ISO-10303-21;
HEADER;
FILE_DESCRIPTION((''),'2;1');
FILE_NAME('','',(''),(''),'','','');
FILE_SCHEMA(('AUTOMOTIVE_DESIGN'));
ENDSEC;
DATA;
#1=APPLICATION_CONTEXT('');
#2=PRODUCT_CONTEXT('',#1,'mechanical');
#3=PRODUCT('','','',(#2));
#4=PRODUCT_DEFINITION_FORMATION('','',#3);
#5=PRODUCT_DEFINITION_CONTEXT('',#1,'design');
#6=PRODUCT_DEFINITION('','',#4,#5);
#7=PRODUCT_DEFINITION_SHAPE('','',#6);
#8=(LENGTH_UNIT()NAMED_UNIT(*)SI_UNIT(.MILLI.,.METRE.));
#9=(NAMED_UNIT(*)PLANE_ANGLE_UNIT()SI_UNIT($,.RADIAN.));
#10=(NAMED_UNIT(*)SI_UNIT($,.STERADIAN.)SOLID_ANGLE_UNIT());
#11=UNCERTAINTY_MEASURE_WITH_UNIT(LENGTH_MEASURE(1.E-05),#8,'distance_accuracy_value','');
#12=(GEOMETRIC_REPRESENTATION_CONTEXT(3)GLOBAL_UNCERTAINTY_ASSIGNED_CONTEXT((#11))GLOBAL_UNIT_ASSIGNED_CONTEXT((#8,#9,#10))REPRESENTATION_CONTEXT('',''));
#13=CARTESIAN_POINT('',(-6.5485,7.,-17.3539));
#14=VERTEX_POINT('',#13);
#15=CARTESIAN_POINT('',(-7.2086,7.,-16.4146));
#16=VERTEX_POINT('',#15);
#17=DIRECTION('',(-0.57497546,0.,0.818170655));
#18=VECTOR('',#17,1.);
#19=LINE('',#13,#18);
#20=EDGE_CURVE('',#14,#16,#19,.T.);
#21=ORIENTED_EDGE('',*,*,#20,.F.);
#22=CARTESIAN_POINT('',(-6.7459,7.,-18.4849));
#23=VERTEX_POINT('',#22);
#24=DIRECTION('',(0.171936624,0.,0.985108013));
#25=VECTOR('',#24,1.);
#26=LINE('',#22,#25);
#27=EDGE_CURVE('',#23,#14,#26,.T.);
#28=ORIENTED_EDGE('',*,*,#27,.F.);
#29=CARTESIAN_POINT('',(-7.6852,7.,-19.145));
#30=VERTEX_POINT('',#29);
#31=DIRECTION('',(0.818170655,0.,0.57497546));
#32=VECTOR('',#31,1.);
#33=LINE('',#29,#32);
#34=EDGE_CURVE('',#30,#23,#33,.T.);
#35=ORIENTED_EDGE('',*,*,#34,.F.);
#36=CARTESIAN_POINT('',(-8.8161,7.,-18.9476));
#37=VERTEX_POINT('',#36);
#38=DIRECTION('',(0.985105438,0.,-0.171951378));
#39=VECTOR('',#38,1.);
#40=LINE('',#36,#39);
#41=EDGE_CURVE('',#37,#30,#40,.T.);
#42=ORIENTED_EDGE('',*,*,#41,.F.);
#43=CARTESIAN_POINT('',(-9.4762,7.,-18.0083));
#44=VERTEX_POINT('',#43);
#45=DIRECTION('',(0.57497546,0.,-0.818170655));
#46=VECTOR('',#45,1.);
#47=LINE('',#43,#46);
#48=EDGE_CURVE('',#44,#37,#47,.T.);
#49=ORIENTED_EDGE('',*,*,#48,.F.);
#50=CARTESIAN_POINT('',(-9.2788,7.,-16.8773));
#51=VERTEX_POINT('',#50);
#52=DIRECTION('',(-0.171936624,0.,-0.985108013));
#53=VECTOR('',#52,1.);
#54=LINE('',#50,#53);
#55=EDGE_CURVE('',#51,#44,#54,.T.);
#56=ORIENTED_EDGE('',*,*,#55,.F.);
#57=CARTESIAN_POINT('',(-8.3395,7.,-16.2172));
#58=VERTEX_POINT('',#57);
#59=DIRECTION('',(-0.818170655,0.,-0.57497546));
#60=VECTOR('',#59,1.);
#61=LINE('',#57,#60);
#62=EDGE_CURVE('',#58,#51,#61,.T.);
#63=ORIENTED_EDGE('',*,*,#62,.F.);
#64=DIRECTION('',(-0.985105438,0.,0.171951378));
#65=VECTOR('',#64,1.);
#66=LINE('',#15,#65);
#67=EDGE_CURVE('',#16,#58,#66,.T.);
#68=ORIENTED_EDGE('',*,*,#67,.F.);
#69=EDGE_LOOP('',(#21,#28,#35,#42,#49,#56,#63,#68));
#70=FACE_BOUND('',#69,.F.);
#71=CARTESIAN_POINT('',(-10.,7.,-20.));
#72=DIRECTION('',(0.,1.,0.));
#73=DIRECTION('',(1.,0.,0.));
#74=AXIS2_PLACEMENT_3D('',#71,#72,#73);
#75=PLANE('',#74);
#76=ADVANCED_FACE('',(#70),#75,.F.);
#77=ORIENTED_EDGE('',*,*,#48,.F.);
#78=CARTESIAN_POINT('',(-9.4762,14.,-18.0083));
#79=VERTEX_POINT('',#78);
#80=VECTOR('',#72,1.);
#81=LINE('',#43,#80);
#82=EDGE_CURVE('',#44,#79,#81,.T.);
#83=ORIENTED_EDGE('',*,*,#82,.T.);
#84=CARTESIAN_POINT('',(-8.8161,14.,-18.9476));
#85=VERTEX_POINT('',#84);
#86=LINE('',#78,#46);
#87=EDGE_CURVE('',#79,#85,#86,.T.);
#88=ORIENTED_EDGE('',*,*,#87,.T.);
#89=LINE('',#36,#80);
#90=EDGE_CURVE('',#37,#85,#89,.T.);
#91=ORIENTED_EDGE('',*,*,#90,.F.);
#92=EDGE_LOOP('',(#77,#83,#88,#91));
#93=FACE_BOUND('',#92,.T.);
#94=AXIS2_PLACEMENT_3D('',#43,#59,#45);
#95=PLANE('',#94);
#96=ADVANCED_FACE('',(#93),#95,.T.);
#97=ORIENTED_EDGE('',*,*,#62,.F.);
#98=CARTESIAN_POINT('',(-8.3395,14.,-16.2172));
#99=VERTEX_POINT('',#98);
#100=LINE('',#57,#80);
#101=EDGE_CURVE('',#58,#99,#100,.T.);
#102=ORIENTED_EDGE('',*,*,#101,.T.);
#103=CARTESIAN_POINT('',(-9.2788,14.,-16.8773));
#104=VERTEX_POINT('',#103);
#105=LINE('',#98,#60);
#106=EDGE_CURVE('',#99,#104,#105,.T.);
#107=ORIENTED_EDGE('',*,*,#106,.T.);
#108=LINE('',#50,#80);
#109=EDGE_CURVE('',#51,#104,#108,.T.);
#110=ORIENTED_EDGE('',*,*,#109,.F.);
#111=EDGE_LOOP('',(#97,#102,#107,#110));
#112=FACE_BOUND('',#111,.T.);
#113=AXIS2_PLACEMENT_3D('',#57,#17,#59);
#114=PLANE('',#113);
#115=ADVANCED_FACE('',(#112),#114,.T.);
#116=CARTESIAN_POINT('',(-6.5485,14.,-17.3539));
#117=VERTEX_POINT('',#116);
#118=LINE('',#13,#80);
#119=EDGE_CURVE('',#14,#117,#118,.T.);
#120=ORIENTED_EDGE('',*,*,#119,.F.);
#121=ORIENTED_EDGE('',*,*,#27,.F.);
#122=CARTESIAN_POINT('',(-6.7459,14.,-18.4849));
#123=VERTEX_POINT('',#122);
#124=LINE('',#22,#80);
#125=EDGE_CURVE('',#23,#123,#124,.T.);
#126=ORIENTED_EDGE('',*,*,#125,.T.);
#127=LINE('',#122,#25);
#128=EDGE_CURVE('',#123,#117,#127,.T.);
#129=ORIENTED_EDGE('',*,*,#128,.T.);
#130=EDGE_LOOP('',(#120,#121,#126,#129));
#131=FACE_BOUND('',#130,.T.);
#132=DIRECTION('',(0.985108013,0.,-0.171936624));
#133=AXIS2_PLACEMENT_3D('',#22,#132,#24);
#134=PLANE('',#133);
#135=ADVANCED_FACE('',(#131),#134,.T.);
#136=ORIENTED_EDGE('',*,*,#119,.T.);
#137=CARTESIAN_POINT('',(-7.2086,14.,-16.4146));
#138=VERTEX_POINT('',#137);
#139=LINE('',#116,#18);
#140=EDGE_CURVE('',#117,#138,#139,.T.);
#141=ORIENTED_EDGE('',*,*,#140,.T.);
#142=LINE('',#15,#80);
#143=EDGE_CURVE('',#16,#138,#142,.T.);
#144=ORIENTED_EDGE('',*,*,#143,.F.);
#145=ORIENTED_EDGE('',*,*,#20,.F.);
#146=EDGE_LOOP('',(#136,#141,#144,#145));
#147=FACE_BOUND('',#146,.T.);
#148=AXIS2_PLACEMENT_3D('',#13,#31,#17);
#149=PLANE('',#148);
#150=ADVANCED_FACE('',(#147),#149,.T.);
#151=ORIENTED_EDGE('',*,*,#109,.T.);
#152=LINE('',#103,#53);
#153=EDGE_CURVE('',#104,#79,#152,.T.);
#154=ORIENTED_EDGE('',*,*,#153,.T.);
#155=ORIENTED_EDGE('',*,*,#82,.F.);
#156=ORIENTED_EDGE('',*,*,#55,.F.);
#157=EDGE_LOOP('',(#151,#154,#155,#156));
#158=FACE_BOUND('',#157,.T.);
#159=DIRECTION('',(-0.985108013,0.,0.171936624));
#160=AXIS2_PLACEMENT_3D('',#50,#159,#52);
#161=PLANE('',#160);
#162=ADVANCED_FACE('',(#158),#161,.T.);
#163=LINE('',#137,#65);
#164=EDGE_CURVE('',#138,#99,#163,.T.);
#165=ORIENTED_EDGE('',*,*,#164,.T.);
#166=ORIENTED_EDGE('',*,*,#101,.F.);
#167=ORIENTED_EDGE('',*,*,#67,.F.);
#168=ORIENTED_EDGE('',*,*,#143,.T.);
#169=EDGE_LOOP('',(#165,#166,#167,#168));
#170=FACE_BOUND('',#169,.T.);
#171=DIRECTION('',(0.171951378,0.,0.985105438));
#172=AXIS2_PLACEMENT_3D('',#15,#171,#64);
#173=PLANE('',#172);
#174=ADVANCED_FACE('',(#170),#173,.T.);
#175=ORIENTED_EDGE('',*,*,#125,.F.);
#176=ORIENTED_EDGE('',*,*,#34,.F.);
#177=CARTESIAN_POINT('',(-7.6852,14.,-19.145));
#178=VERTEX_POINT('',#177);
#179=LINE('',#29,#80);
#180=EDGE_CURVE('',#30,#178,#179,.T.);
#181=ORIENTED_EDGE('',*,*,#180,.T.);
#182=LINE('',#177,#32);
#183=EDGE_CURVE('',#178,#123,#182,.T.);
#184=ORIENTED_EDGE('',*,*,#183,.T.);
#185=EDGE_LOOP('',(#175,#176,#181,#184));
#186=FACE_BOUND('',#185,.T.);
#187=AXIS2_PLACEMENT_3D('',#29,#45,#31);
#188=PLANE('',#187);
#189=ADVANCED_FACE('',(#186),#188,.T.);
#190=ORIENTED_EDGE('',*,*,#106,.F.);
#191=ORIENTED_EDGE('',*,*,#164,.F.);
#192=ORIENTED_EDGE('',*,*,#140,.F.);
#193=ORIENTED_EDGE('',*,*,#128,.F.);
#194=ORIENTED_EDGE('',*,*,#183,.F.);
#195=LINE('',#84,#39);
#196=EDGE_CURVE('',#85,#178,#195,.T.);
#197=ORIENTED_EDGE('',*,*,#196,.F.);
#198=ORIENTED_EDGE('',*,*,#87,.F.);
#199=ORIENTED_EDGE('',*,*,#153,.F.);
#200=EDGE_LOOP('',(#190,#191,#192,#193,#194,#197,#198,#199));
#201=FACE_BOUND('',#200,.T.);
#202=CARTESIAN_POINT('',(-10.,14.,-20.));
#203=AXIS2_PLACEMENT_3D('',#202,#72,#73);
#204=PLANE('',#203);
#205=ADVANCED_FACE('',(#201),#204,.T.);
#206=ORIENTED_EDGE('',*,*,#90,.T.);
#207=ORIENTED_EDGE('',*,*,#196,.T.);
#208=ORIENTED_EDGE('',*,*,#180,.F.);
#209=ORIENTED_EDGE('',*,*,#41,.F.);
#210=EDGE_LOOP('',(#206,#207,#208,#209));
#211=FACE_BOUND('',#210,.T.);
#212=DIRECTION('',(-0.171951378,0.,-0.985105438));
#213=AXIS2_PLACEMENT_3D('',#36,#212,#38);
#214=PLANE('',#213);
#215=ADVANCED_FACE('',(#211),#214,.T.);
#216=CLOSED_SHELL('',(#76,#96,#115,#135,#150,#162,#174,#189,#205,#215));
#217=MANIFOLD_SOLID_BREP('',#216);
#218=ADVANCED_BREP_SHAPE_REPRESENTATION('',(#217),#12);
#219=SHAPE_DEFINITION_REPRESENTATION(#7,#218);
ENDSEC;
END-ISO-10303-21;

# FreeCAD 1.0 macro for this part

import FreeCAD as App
import Part
import Sketcher
Q = App.Units.Quantity

doc = App.newDocument("Part")
params = doc.addObject("Spreadsheet::Sheet", "Params")
for row, (alias, value) in enumerate([
    ("pad1_length", "7 mm"),
], start=1):
    params.set(f"A{row}", alias)
    params.set(f"B{row}", "=" + value)
    params.setAlias(f"B{row}", alias)

body = doc.addObject("PartDesign::Body", "Body")

sketch1 = body.newObject("Sketcher::SketchObject", "Sketch")
sketch1.AttachmentSupport = (doc.getObject("XZ_Plane"), [""])
sketch1.MapMode = "FlatFace"
sketch1.AttachmentOffset = App.Placement(App.Vector(0, 0, -7), App.Rotation())
sketch1.addGeometry([
    Part.LineSegment(App.Vector(-7.7, -19.1, 0), App.Vector(-8.8, -18.9, 0)),
    Part.LineSegment(App.Vector(-8.8, -18.9, 0), App.Vector(-9.5, -18, 0)),
    Part.LineSegment(App.Vector(-9.5, -18, 0), App.Vector(-9.3, -16.9, 0)),
    Part.LineSegment(App.Vector(-9.3, -16.9, 0), App.Vector(-8.3, -16.2, 0)),
    Part.LineSegment(App.Vector(-8.3, -16.2, 0), App.Vector(-7.2, -16.4, 0)),
    Part.LineSegment(App.Vector(-7.2, -16.4, 0), App.Vector(-6.5, -17.4, 0)),
    Part.LineSegment(App.Vector(-6.5, -17.4, 0), App.Vector(-6.7, -18.5, 0)),
    Part.LineSegment(App.Vector(-6.7, -18.5, 0), App.Vector(-7.7, -19.1, 0)),
], False)
sketch1.addConstraint([
    Sketcher.Constraint("Coincident", 0, 2, 1, 1),
    Sketcher.Constraint("Coincident", 1, 2, 2, 1),
    Sketcher.Constraint("Coincident", 2, 2, 3, 1),
    Sketcher.Constraint("Coincident", 3, 2, 4, 1),
    Sketcher.Constraint("Coincident", 4, 2, 5, 1),
    Sketcher.Constraint("Coincident", 5, 2, 6, 1),
    Sketcher.Constraint("Coincident", 6, 2, 7, 1),
    Sketcher.Constraint("Coincident", 7, 2, 0, 1),
    Sketcher.Constraint("Perpendicular", 0, 2),
    Sketcher.Constraint("Perpendicular", 1, 3),
    Sketcher.Constraint("Perpendicular", 2, 4),
    Sketcher.Constraint("Perpendicular", 3, 5),
    Sketcher.Constraint("Perpendicular", 4, 6),
    Sketcher.Constraint("Perpendicular", 5, 7),
    Sketcher.Constraint("Equal", 0, 1),
    Sketcher.Constraint("Equal", 1, 2),
    Sketcher.Constraint("Equal", 2, 3),
    Sketcher.Constraint("Equal", 3, 4),
    Sketcher.Constraint("Equal", 4, 5),
    Sketcher.Constraint("Angle", 2, Q("80.0996 deg")),
    Sketcher.Constraint("DistanceX", 1, 2, 0, 2, 0.66),
    Sketcher.Constraint("Distance", 0, 1.148),
    Sketcher.Constraint("DistanceX", 0, 2, -1, 1, 8.816),
    Sketcher.Constraint("DistanceY", 5, 2, -1, 1, 17.354),
])
pad1 = body.newObject("PartDesign::Pad", "Pad")
pad1.Profile = sketch1
pad1.setExpression("Length", "Params.pad1_length")
pad1.Reversed = True

doc.recompute()
